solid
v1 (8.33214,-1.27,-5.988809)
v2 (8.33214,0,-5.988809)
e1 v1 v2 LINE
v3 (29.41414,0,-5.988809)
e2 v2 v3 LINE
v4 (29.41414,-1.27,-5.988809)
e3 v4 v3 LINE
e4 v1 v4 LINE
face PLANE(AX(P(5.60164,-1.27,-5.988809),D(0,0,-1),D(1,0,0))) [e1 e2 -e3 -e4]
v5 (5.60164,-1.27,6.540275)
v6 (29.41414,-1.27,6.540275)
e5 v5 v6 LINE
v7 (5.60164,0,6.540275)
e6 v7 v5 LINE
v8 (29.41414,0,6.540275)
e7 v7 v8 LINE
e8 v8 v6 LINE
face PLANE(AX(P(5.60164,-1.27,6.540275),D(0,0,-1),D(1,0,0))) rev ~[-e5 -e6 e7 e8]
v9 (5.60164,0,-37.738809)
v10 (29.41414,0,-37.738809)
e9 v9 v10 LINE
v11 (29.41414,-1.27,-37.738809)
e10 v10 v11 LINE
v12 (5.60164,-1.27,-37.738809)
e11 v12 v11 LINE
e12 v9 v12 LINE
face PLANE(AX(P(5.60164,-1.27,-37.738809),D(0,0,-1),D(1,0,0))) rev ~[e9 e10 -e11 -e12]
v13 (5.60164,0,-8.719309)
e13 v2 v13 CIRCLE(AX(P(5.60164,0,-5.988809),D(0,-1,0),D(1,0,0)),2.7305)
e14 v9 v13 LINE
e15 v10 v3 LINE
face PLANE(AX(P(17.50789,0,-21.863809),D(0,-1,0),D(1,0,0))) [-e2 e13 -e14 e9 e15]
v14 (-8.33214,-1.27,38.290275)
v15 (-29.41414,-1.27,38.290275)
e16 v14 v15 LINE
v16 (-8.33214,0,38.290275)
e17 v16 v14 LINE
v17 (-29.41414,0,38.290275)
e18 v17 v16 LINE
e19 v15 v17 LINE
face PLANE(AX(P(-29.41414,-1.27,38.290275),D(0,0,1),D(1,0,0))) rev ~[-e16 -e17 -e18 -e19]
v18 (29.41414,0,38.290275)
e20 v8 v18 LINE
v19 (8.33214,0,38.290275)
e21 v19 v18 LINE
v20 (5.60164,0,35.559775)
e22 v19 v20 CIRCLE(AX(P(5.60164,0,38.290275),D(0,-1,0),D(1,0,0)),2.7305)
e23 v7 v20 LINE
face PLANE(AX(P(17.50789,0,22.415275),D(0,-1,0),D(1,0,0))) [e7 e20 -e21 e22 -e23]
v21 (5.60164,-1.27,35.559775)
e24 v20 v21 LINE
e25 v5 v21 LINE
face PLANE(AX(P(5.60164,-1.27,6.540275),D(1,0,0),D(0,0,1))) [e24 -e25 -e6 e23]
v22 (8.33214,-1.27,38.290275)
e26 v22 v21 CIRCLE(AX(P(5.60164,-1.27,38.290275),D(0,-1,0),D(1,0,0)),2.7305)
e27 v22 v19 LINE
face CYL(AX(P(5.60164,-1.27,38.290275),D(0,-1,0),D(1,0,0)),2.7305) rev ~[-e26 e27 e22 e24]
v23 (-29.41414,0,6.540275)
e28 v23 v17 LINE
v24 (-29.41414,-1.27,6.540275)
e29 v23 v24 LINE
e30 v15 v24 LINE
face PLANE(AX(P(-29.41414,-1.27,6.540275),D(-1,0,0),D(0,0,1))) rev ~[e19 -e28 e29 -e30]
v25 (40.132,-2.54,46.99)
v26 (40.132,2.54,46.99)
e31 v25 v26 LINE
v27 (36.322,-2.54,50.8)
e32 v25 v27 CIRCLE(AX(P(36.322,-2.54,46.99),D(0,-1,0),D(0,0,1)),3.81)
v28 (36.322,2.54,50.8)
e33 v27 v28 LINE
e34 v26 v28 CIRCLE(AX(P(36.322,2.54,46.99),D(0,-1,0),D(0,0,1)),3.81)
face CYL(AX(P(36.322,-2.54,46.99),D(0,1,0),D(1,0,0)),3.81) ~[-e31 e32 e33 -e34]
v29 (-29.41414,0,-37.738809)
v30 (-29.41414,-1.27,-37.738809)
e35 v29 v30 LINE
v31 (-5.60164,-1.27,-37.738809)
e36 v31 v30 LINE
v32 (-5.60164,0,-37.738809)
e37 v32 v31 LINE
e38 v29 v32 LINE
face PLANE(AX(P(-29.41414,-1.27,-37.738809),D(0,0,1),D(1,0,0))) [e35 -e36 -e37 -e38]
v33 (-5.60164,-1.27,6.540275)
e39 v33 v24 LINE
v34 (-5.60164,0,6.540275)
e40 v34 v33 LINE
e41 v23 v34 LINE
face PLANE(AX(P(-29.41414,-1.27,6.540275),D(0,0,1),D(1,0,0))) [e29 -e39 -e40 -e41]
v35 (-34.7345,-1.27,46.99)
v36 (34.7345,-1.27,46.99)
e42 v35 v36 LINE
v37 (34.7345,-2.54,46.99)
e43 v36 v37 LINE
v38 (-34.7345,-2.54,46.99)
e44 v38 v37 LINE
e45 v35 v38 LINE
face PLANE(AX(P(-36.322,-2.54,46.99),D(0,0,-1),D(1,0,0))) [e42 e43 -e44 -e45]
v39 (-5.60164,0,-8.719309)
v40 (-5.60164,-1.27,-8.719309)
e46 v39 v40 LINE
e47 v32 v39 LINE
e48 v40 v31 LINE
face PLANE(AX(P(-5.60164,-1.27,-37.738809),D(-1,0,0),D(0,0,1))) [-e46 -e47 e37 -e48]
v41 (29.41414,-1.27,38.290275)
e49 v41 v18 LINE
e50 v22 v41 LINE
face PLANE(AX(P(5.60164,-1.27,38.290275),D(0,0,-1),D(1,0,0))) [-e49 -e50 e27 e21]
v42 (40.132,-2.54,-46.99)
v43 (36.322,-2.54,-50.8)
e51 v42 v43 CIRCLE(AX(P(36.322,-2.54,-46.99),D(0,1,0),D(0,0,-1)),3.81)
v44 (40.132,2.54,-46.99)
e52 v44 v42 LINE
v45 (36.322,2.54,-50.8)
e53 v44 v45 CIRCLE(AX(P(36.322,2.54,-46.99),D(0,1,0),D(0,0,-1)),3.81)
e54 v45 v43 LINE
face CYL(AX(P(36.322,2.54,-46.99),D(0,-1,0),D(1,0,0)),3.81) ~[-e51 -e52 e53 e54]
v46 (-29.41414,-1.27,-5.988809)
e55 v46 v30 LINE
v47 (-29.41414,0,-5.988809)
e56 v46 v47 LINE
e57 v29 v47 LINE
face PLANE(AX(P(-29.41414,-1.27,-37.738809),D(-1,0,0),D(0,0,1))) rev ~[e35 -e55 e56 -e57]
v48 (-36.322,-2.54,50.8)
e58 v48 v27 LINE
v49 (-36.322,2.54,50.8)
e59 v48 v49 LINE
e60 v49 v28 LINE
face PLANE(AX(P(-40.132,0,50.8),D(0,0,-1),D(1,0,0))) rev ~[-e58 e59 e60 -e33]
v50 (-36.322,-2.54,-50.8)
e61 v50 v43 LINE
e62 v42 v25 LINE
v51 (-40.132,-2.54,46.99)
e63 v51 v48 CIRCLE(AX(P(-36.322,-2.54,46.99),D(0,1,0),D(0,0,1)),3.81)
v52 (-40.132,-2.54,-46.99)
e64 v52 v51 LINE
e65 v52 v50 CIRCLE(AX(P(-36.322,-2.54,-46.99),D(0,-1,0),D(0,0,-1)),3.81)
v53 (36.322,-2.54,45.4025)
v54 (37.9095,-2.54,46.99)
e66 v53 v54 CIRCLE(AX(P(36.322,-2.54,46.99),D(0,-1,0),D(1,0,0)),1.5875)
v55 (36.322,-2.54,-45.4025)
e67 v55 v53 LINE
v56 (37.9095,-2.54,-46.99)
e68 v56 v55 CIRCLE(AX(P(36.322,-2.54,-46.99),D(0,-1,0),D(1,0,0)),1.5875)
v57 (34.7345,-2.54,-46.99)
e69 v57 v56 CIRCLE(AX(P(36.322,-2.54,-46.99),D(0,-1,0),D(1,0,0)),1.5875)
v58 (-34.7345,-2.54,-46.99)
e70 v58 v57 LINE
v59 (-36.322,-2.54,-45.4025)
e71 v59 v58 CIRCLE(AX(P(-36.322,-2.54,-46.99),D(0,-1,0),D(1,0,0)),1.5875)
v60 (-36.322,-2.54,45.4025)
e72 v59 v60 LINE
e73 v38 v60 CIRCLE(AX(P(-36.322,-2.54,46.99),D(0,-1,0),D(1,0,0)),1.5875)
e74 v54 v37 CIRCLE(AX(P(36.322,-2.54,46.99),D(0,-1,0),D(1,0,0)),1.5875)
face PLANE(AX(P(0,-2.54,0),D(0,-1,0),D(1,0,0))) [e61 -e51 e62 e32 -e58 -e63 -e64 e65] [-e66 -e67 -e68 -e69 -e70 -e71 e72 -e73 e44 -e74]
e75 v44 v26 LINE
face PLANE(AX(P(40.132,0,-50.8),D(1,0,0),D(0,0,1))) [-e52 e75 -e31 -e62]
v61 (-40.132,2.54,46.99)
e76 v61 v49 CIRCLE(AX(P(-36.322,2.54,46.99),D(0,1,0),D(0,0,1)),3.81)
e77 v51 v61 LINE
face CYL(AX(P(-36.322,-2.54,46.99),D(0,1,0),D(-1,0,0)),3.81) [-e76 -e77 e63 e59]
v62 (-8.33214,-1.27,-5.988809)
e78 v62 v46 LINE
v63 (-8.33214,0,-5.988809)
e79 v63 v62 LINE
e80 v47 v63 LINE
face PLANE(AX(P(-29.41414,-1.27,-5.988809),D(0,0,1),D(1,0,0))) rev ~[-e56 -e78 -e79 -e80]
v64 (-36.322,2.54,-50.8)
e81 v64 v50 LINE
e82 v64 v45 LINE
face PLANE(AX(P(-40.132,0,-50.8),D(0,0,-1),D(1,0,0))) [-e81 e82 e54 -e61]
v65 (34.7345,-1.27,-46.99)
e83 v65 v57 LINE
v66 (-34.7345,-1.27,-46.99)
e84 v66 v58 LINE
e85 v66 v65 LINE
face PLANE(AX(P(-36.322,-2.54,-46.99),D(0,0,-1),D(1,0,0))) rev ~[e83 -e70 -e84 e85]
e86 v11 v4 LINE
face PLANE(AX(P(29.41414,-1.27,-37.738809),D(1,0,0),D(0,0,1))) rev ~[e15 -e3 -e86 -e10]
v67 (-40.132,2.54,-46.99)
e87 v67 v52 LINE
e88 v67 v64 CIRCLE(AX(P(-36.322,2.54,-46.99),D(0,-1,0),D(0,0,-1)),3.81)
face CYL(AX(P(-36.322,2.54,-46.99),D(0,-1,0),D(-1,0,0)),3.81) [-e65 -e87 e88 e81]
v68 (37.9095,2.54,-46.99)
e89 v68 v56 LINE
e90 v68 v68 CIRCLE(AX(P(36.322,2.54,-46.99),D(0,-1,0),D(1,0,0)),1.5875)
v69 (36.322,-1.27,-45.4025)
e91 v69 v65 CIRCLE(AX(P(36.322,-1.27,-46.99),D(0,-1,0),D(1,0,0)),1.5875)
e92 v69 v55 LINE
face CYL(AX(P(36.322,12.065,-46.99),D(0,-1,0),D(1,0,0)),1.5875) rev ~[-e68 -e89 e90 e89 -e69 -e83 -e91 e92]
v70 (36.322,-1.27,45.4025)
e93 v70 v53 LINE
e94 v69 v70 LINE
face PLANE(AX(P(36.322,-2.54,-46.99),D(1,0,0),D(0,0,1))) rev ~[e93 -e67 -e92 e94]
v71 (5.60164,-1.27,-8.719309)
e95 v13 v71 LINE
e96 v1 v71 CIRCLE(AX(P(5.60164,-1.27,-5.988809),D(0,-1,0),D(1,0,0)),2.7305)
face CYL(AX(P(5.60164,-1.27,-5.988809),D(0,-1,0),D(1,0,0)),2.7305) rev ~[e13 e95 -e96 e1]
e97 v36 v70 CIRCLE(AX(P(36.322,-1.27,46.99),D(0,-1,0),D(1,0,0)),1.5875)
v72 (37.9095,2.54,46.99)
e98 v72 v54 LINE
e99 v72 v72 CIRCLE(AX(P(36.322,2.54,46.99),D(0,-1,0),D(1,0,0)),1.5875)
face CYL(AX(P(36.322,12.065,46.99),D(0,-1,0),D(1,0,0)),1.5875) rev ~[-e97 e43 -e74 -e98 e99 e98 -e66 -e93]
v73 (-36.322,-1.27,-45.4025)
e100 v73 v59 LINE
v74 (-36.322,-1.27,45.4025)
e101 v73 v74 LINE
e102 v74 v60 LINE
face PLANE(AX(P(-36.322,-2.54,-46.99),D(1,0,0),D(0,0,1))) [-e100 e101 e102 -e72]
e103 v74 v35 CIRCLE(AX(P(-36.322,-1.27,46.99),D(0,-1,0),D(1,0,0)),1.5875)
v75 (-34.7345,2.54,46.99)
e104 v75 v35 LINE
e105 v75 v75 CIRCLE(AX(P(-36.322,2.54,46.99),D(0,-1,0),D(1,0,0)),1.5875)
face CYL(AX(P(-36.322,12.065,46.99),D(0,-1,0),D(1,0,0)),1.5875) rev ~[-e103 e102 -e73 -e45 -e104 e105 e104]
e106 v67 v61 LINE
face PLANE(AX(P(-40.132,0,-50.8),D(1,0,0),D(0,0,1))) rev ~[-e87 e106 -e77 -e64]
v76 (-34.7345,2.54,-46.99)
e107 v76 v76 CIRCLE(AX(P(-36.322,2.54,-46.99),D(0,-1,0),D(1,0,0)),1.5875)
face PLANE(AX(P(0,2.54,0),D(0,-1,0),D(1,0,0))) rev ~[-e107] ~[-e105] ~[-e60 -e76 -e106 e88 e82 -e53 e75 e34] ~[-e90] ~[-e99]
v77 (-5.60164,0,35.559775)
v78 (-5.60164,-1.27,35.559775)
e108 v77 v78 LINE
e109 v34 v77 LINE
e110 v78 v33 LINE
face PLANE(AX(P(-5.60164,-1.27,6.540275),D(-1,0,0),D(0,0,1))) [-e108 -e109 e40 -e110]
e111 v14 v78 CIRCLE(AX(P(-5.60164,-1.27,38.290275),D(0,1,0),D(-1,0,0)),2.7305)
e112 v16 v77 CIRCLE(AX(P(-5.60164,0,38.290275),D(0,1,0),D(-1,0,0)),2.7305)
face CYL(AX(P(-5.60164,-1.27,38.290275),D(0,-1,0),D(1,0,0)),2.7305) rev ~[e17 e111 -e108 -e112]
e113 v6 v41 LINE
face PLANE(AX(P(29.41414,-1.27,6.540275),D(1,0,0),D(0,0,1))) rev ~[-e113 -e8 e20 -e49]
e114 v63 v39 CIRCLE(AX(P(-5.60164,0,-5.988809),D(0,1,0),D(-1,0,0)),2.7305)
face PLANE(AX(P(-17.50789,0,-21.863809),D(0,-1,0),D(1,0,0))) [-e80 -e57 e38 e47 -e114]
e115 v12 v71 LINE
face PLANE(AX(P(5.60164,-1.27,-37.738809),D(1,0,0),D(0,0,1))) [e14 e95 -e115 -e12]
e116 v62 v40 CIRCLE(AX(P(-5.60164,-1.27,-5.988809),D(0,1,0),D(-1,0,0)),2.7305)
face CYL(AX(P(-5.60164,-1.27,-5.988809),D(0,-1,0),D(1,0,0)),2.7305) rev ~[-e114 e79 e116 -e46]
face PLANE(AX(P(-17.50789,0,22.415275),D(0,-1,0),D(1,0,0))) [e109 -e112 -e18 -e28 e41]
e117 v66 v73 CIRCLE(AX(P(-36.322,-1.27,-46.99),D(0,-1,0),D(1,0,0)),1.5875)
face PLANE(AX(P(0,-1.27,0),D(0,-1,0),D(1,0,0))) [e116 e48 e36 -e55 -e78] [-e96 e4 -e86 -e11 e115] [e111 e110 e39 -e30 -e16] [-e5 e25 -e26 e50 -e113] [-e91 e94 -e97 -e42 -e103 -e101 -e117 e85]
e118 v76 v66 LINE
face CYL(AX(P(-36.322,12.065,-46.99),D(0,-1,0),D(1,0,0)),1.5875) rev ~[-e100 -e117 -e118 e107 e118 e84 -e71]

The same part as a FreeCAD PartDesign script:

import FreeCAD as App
import Part
import Sketcher
Q = App.Units.Quantity


def edges_at(feature, points):
    """Names of the edges that pass closest to the given points."""
    edges = feature.Shape.Edges
    near = lambda p: min(range(len(edges)), key=lambda i: edges[i].distToShape(Part.Vertex(*p))[0])
    return sorted({f"Edge{near(p) + 1}" for p in points})

doc = App.newDocument("Part")
params = doc.addObject("Spreadsheet::Sheet", "Params")
for row, (alias, value) in enumerate([
    ("sketch1_height", "4 in"),
    ("sketch1_width", "3.16 in"),
    ("pad1_length", "0.2 in"),
    ("fillet_radius", "0.15 in"),
    ("sketch2_height", "3.7 in"),
    ("sketch2_width", "2.86 in"),
    ("pocket1_length", "0.05 in"),
    ("sketch3_height", "1.25 in"),
    ("sketch3_width", "0.9375 in"),
    ("pocket2_length", "0.1 in"),
    ("sketch4_height", "1.25 in"),
    ("sketch4_width", "0.9375 in"),
    ("pocket3_length", "0.1 in"),
    ("sketch5_diameter", "0.215 in"),
    ("pocket4_length", "0.05 in"),
    ("sketch6_diameter", "0.125 in"),
    ("hole_diameter", "0.125 in"),
    ("hole_depth", "0.375 in"),
], start=1):
    params.set(f"A{row}", alias)
    params.set(f"B{row}", "=" + value)
    params.setAlias(f"B{row}", alias)

body = doc.addObject("PartDesign::Body", "Body")

sketch1 = doc.addObject("Sketcher::SketchObject", "Sketch")
body.addObject(sketch1)
sketch1.AttachmentSupport = (doc.XZ_Plane, [""])
sketch1.MapMode = "FlatFace"
sketch1.addGeometry([
    Part.LineSegment(App.Vector(-40, 51, 0), App.Vector(-40, -51, 0)),
    Part.LineSegment(App.Vector(-40, -51, 0), App.Vector(40, -51, 0)),
    Part.LineSegment(App.Vector(40, -51, 0), App.Vector(40, 51, 0)),
    Part.LineSegment(App.Vector(40, 51, 0), App.Vector(-40, 51, 0)),
], False)
sketch1.addConstraint([
    Sketcher.Constraint("Coincident", 0, 2, 1, 1),
    Sketcher.Constraint("Coincident", 1, 2, 2, 1),
    Sketcher.Constraint("Coincident", 2, 2, 3, 1),
    Sketcher.Constraint("Coincident", 3, 2, 0, 1),
    Sketcher.Constraint("Vertical", 0),
    Sketcher.Constraint("Horizontal", 1),
    Sketcher.Constraint("Vertical", 2),
    Sketcher.Constraint("Horizontal", 3),
    Sketcher.Constraint("Symmetric", 0, 2, 2, 2, -1, 1),
    Sketcher.Constraint("DistanceY", 0, 2, 0, 1, Q("4 in")),
    Sketcher.Constraint("DistanceX", 1, 1, 1, 2, Q("3.16 in")),
])
sketch1.setExpression("Constraints[9]", "Params.sketch1_height")
sketch1.setExpression("Constraints[10]", "Params.sketch1_width")
pad1 = doc.addObject("PartDesign::Pad", "Pad")
body.addObject(pad1)
pad1.Profile = sketch1
pad1.setExpression("Length", "Params.pad1_length")
pad1.Midplane = True
doc.recompute()

fillet = doc.addObject("PartDesign::Fillet", "Fillet")
body.addObject(fillet)
fillet.Base = (pad1, edges_at(pad1, [
    (-40.132, 0, 50.8),
    (40.132, 0, 50.8),
    (40.132, 0, -50.8),
    (-40.132, 0, -50.8),
]))
fillet.setExpression("Radius", "Params.fillet_radius")

sketch2 = doc.addObject("Sketcher::SketchObject", "Sketch001")
body.addObject(sketch2)
sketch2.AttachmentSupport = (doc.XZ_Plane, [""])
sketch2.MapMode = "FlatFace"
sketch2.AttachmentOffset = App.Placement(App.Vector(0, 0, 0.1 * 25.4), App.Rotation())
sketch2.addGeometry([
    Part.LineSegment(App.Vector(-36, 47, 0), App.Vector(-36, -47, 0)),
    Part.LineSegment(App.Vector(-36, -47, 0), App.Vector(36, -47, 0)),
    Part.LineSegment(App.Vector(36, -47, 0), App.Vector(36, 47, 0)),
    Part.LineSegment(App.Vector(36, 47, 0), App.Vector(-36, 47, 0)),
], False)
sketch2.addConstraint([
    Sketcher.Constraint("Coincident", 0, 2, 1, 1),
    Sketcher.Constraint("Coincident", 1, 2, 2, 1),
    Sketcher.Constraint("Coincident", 2, 2, 3, 1),
    Sketcher.Constraint("Coincident", 3, 2, 0, 1),
    Sketcher.Constraint("Vertical", 0),
    Sketcher.Constraint("Horizontal", 1),
    Sketcher.Constraint("Vertical", 2),
    Sketcher.Constraint("Horizontal", 3),
    Sketcher.Constraint("Symmetric", 0, 2, 2, 2, -1, 1),
    Sketcher.Constraint("DistanceY", 0, 2, 0, 1, Q("3.7 in")),
    Sketcher.Constraint("DistanceX", 1, 1, 1, 2, Q("2.86 in")),
])
sketch2.setExpression("Constraints[9]", "Params.sketch2_height")
sketch2.setExpression("Constraints[10]", "Params.sketch2_width")
pocket1 = doc.addObject("PartDesign::Pocket", "Pocket")
body.addObject(pocket1)
pocket1.Profile = sketch2
pocket1.setExpression("Length", "Params.pocket1_length")

sketch3 = doc.addObject("Sketcher::SketchObject", "Sketch002")
body.addObject(sketch3)
sketch3.AttachmentSupport = (doc.XZ_Plane, [""])
sketch3.MapMode = "FlatFace"
sketch3.AttachmentOffset = App.Placement(App.Vector(0, 0, 0.05 * 25.4), App.Rotation())
sketch3.addGeometry([
    Part.LineSegment(App.Vector(-29, 38, 0), App.Vector(-29, 7, 0)),
    Part.LineSegment(App.Vector(-29, 7, 0), App.Vector(-6, 7, 0)),
    Part.LineSegment(App.Vector(-6, 7, 0), App.Vector(-6, 38, 0)),
    Part.LineSegment(App.Vector(-6, 38, 0), App.Vector(-29, 38, 0)),
    Part.LineSegment(App.Vector(6, 38, 0), App.Vector(6, 7, 0)),
    Part.LineSegment(App.Vector(6, 7, 0), App.Vector(29, 7, 0)),
    Part.LineSegment(App.Vector(29, 7, 0), App.Vector(29, 38, 0)),
    Part.LineSegment(App.Vector(29, 38, 0), App.Vector(6, 38, 0)),
], False)
sketch3.addConstraint([
    Sketcher.Constraint("Coincident", 0, 2, 1, 1),
    Sketcher.Constraint("Coincident", 1, 2, 2, 1),
    Sketcher.Constraint("Coincident", 2, 2, 3, 1),
    Sketcher.Constraint("Coincident", 3, 2, 0, 1),
    Sketcher.Constraint("Coincident", 4, 2, 5, 1),
    Sketcher.Constraint("Coincident", 5, 2, 6, 1),
    Sketcher.Constraint("Coincident", 6, 2, 7, 1),
    Sketcher.Constraint("Coincident", 7, 2, 4, 1),
    Sketcher.Constraint("Vertical", 0),
    Sketcher.Constraint("Horizontal", 1),
    Sketcher.Constraint("Vertical", 2),
    Sketcher.Constraint("Horizontal", 3),
    Sketcher.Constraint("Vertical", 4),
    Sketcher.Constraint("Horizontal", 5),
    Sketcher.Constraint("Vertical", 6),
    Sketcher.Constraint("Horizontal", 7),
    Sketcher.Constraint("Symmetric", 1, 2, 4, 2, -2),
    Sketcher.Constraint("Symmetric", 3, 2, 6, 2, -2),
    Sketcher.Constraint("DistanceY", 0, 2, 0, 1, Q("1.25 in")),
    Sketcher.Constraint("DistanceX", 1, 1, 1, 2, Q("0.9375 in")),
    Sketcher.Constraint("DistanceX", 0, 2, -1, 1, Q("29.41414 mm")),
    Sketcher.Constraint("DistanceY", -1, 1, 0, 2, Q("6.540275 mm")),
])
sketch3.setExpression("Constraints[18]", "Params.sketch3_height")
sketch3.setExpression("Constraints[19]", "Params.sketch3_width")
pocket2 = doc.addObject("PartDesign::Pocket", "Pocket001")
body.addObject(pocket2)
pocket2.Profile = sketch3
pocket2.setExpression("Length", "Params.pocket2_length")
pocket2.Midplane = True

sketch4 = doc.addObject("Sketcher::SketchObject", "Sketch003")
body.addObject(sketch4)
sketch4.AttachmentSupport = (doc.XZ_Plane, [""])
sketch4.MapMode = "FlatFace"
sketch4.AttachmentOffset = App.Placement(App.Vector(0, 0, 0.05 * 25.4), App.Rotation())
sketch4.addGeometry([
    Part.LineSegment(App.Vector(-29, -6, 0), App.Vector(-29, -38, 0)),
    Part.LineSegment(App.Vector(-29, -38, 0), App.Vector(-6, -38, 0)),
    Part.LineSegment(App.Vector(-6, -38, 0), App.Vector(-6, -6, 0)),
    Part.LineSegment(App.Vector(-6, -6, 0), App.Vector(-29, -6, 0)),
    Part.LineSegment(App.Vector(6, -6, 0), App.Vector(6, -38, 0)),
    Part.LineSegment(App.Vector(6, -38, 0), App.Vector(29, -38, 0)),
    Part.LineSegment(App.Vector(29, -38, 0), App.Vector(29, -6, 0)),
    Part.LineSegment(App.Vector(29, -6, 0), App.Vector(6, -6, 0)),
], False)
sketch4.addConstraint([
    Sketcher.Constraint("Coincident", 0, 2, 1, 1),
    Sketcher.Constraint("Coincident", 1, 2, 2, 1),
    Sketcher.Constraint("Coincident", 2, 2, 3, 1),
    Sketcher.Constraint("Coincident", 3, 2, 0, 1),
    Sketcher.Constraint("Coincident", 4, 2, 5, 1),
    Sketcher.Constraint("Coincident", 5, 2, 6, 1),
    Sketcher.Constraint("Coincident", 6, 2, 7, 1),
    Sketcher.Constraint("Coincident", 7, 2, 4, 1),
    Sketcher.Constraint("Vertical", 0),
    Sketcher.Constraint("Horizontal", 1),
    Sketcher.Constraint("Vertical", 2),
    Sketcher.Constraint("Horizontal", 3),
    Sketcher.Constraint("Vertical", 4),
    Sketcher.Constraint("Horizontal", 5),
    Sketcher.Constraint("Vertical", 6),
    Sketcher.Constraint("Horizontal", 7),
    Sketcher.Constraint("Symmetric", 1, 2, 4, 2, -2),
    Sketcher.Constraint("Symmetric", 3, 2, 6, 2, -2),
    Sketcher.Constraint("DistanceY", 0, 2, 0, 1, Q("1.25 in")),
    Sketcher.Constraint("DistanceX", 1, 1, 1, 2, Q("0.9375 in")),
    Sketcher.Constraint("DistanceX", 0, 2, -1, 1, Q("29.41414 mm")),
    Sketcher.Constraint("DistanceY", 0, 2, -1, 1, Q("37.738809 mm")),
])
sketch4.setExpression("Constraints[18]", "Params.sketch4_height")
sketch4.setExpression("Constraints[19]", "Params.sketch4_width")
pocket3 = doc.addObject("PartDesign::Pocket", "Pocket002")
body.addObject(pocket3)
pocket3.Profile = sketch4
pocket3.setExpression("Length", "Params.pocket3_length")
pocket3.Midplane = True

sketch5 = doc.addObject("Sketcher::SketchObject", "Sketch004")
body.addObject(sketch5)
sketch5.AttachmentSupport = (doc.XZ_Plane, [""])
sketch5.MapMode = "FlatFace"
sketch5.AttachmentOffset = App.Placement(App.Vector(0, 0, 0.05 * 25.4), App.Rotation())
sketch5.addGeometry([
    Part.Circle(App.Vector(-5.6, 38.3, 0), App.Vector(0, 0, 1), 2.7),
    Part.Circle(App.Vector(-5.6, -6, 0), App.Vector(0, 0, 1), 2.7),
    Part.Circle(App.Vector(5.6, 38.3, 0), App.Vector(0, 0, 1), 2.7),
    Part.Circle(App.Vector(5.6, -6, 0), App.Vector(0, 0, 1), 2.7),
], False)
sketch5.addConstraint([
    Sketcher.Constraint("Equal", 0, 1),
    Sketcher.Constraint("Equal", 1, 2),
    Sketcher.Constraint("Equal", 2, 3),
    Sketcher.Constraint("Symmetric", 0, 3, 2, 3, -2),
    Sketcher.Constraint("Symmetric", 1, 3, 3, 3, -2),
    Sketcher.Constraint("Vertical", 0, 3, 1, 3),
    Sketcher.Constraint("Diameter", 0, Q("0.215 in")),
    Sketcher.Constraint("DistanceX", 0, 3, -1, 1, Q("5.60164 mm")),
    Sketcher.Constraint("DistanceY", 1, 3, -1, 1, Q("5.988809 mm")),
    Sketcher.Constraint("DistanceY", -1, 1, 0, 3, Q("38.290275 mm")),
])
sketch5.setExpression("Constraints[6]", "Params.sketch5_diameter")
pocket4 = doc.addObject("PartDesign::Pocket", "Pocket003")
body.addObject(pocket4)
pocket4.Profile = sketch5
pocket4.setExpression("Length", "Params.pocket4_length")

sketch6 = doc.addObject("Sketcher::SketchObject", "Sketch005")
body.addObject(sketch6)
sketch6.AttachmentSupport = (doc.XZ_Plane, [""])
sketch6.MapMode = "FlatFace"
sketch6.AttachmentOffset = App.Placement(App.Vector(0, 0, -0.1 * 25.4), App.Rotation())
sketch6.addGeometry([
    Part.Circle(App.Vector(36.3, 47, 0), App.Vector(0, 0, 1), 1.6),
    Part.Circle(App.Vector(-36.3, 47, 0), App.Vector(0, 0, 1), 1.6),
    Part.Circle(App.Vector(-36.3, -47, 0), App.Vector(0, 0, 1), 1.6),
    Part.Circle(App.Vector(36.3, -47, 0), App.Vector(0, 0, 1), 1.6),
], False)
sketch6.addConstraint([
    Sketcher.Constraint("Equal", 0, 1),
    Sketcher.Constraint("Equal", 1, 2),
    Sketcher.Constraint("Equal", 2, 3),
    Sketcher.Constraint("Symmetric", 0, 3, 2, 3, -1, 1),
    Sketcher.Constraint("Symmetric", 1, 3, 3, 3, -1, 1),
    Sketcher.Constraint("Symmetric", 0, 3, 1, 3, -2),
    Sketcher.Constraint("Diameter", 0, Q("0.125 in")),
    Sketcher.Constraint("DistanceY", 2, 3, 1, 3, Q("3.7 in")),
    Sketcher.Constraint("DistanceX", -1, 1, 0, 3, Q("1.43 in")),
])
sketch6.setExpression("Constraints[6]", "Params.sketch6_diameter")
doc.recompute()
hole = doc.addObject("PartDesign::Hole", "Hole")
body.addObject(hole)
hole.Profile = sketch6
hole.ThreadType = "None"
hole.setExpression("Diameter", "Params.hole_diameter")
hole.DepthType = "Dimension"
hole.setExpression("Depth", "Params.hole_depth")
hole.DrillPoint = "Angled"
hole.DrillPointAngle = 118
hole.Reversed = True

doc.recompute()
